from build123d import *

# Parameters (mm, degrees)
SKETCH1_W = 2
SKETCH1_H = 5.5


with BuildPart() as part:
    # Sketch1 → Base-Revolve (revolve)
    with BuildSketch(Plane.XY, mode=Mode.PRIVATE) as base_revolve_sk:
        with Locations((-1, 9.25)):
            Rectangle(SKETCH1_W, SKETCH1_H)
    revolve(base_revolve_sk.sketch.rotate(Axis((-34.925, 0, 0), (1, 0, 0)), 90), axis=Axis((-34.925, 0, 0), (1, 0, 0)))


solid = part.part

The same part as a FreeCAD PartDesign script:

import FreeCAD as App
import Part
import Sketcher
from FreeCAD import Vector
Q = App.Units.Quantity


def add_polygon(sketch, points):
    """Adds a closed chain of lines whose ends are joined by coincident constraints."""
    first, n = sketch.GeometryCount, len(points)
    for a, b in zip(points, points[1:] + points[:1]):
        sketch.addGeometry(Part.LineSegment(App.Vector(*a, 0), App.Vector(*b, 0)), False)
    for i in range(n):
        sketch.addConstraint(Sketcher.Constraint("Coincident", first + i, 2, first + (i + 1) % n, 1))

doc = App.newDocument("Part")
body = doc.addObject("PartDesign::Body", "Body")

# Sketch on XY plane
sketch1 = doc.addObject("Sketcher::SketchObject", "Sketch")
body.addObject(sketch1)
sketch1.AttachmentSupport = (doc.XY_Plane, [""])
sketch1.MapMode = "FlatFace"
add_polygon(sketch1, [(-2, 12), (-2, 6.5), (0, 6.5), (0, 12)])  # lines 0-3
sketch1.addConstraint([
    Sketcher.Constraint("Vertical", 0),
    Sketcher.Constraint("Horizontal", 1),
    Sketcher.Constraint("Vertical", 2),
    Sketcher.Constraint("Horizontal", 3),
    Sketcher.Constraint("PointOnObject", 1, 2, -2),
    Sketcher.Constraint("DistanceX", 1, 1, 1, 2, Q("2 mm")),
    Sketcher.Constraint("DistanceY", 0, 2, 0, 1, Q("5.5 mm")),
    Sketcher.Constraint("DistanceY", -1, 1, 2, 2, Q("12 mm")),
])
revolution = doc.addObject("PartDesign::Revolution", "Revolution")
body.addObject(revolution)
revolution.Profile = sketch1
revolution.ReferenceAxis = (sketch1, ["H_Axis"])
revolution.Angle = 360

doc.recompute()
